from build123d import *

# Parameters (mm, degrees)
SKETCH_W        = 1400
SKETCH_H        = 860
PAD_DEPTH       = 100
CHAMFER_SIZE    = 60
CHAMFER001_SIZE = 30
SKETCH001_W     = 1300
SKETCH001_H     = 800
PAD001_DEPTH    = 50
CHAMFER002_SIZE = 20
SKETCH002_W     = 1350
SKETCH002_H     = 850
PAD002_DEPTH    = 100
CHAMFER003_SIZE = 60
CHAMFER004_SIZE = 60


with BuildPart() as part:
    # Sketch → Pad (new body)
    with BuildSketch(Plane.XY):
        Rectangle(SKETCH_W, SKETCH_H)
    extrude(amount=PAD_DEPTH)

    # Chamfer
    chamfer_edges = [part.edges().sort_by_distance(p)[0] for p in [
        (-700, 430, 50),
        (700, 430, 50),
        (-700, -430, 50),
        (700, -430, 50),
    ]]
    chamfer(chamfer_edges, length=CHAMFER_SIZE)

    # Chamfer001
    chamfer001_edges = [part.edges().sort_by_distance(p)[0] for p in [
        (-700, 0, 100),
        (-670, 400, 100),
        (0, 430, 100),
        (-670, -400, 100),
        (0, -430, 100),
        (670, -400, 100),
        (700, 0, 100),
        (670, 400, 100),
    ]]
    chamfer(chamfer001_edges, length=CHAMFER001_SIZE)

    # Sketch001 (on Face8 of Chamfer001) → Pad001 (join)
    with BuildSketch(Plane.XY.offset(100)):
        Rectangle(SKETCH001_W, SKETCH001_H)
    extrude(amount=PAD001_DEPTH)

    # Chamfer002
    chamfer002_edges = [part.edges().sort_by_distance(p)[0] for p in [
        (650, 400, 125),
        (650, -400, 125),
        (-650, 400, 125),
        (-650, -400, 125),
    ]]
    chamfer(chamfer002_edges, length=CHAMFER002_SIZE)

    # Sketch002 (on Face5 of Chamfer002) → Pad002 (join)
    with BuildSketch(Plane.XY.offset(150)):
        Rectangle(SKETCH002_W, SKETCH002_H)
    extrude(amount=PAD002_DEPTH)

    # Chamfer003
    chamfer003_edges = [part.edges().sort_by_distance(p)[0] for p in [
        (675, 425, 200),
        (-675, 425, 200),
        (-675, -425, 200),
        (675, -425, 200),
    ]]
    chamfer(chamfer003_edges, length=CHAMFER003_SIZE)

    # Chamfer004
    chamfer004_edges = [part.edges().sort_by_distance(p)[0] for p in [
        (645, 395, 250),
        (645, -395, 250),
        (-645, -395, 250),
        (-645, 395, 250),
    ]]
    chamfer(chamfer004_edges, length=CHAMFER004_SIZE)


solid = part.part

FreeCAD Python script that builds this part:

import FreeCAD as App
import Part
import Sketcher
from FreeCAD import Vector


def edges_at(feature, points):
    """Names of the edges that pass closest to the given points."""
    edges = feature.Shape.Edges
    near = lambda p: min(range(len(edges)), key=lambda i: edges[i].distToShape(Part.Vertex(*p))[0])
    return sorted({f"Edge{near(p) + 1}" for p in points})


def add_polygon(sketch, points):
    """Adds a closed chain of lines whose ends are joined by coincident constraints."""
    first, n = sketch.GeometryCount, len(points)
    for a, b in zip(points, points[1:] + points[:1]):
        sketch.addGeometry(Part.LineSegment(App.Vector(*a, 0), App.Vector(*b, 0)), False)
    for i in range(n):
        sketch.addConstraint(Sketcher.Constraint("Coincident", first + i, 2, first + (i + 1) % n, 1))

doc = App.newDocument("Part")
body = doc.addObject("PartDesign::Body", "Body")

sketch1 = body.newObject("Sketcher::SketchObject", "Sketch")
sketch1.AttachmentSupport = (doc.getObject("XY_Plane"), [""])
sketch1.MapMode = "FlatFace"
add_polygon(sketch1, [(-700, 430), (-700, -430), (700, -430), (700, 430)])
sketch1.addConstraint(Sketcher.Constraint("Vertical", 0))
sketch1.addConstraint(Sketcher.Constraint("Horizontal", 1))
sketch1.addConstraint(Sketcher.Constraint("Vertical", 2))
sketch1.addConstraint(Sketcher.Constraint("Horizontal", 3))
sketch1.addConstraint(Sketcher.Constraint("Symmetric", 0, 2, 2, 2, -1, 1))
sketch1.addConstraint(Sketcher.Constraint("DistanceX", 1, 1, 1, 2, 1400.0))
sketch1.addConstraint(Sketcher.Constraint("DistanceY", 0, 2, 0, 1, 860.0))
pad1 = body.newObject("PartDesign::Pad", "Pad")
pad1.Profile = sketch1
pad1.Length = 100
doc.recompute()

chamfer = body.newObject("PartDesign::Chamfer", "Chamfer")
chamfer.Base = (pad1, edges_at(pad1, [
    (-700, 430, 50),
    (700, 430, 50),
    (-700, -430, 50),
    (700, -430, 50),
]))
chamfer.Size = 60
doc.recompute()

chamfer2 = body.newObject("PartDesign::Chamfer", "Chamfer001")
chamfer2.Base = (chamfer, edges_at(chamfer, [
    (-700, 0, 100),
    (-670, 400, 100),
    (0, 430, 100),
    (-670, -400, 100),
    (0, -430, 100),
    (670, -400, 100),
    (700, 0, 100),
    (670, 400, 100),
]))
chamfer2.Size = 30

sketch2 = body.newObject("Sketcher::SketchObject", "Sketch001")
sketch2.AttachmentSupport = (doc.getObject("XY_Plane"), [""])
sketch2.MapMode = "FlatFace"
sketch2.AttachmentOffset = App.Placement(Vector(0, 0, 100), App.Rotation())
add_polygon(sketch2, [(-650, 400), (-650, -400), (650, -400), (650, 400)])
sketch2.addConstraint(Sketcher.Constraint("Vertical", 0))
sketch2.addConstraint(Sketcher.Constraint("Horizontal", 1))
sketch2.addConstraint(Sketcher.Constraint("Vertical", 2))
sketch2.addConstraint(Sketcher.Constraint("Horizontal", 3))
sketch2.addConstraint(Sketcher.Constraint("Symmetric", 0, 2, 2, 2, -1, 1))
sketch2.addConstraint(Sketcher.Constraint("DistanceX", 1, 1, 1, 2, 1300.0))
sketch2.addConstraint(Sketcher.Constraint("DistanceY", 0, 2, 0, 1, 800.0))
pad2 = body.newObject("PartDesign::Pad", "Pad001")
pad2.Profile = sketch2
pad2.Length = 50
doc.recompute()

chamfer3 = body.newObject("PartDesign::Chamfer", "Chamfer002")
chamfer3.Base = (pad2, edges_at(pad2, [
    (650, 400, 125),
    (650, -400, 125),
    (-650, 400, 125),
    (-650, -400, 125),
]))
chamfer3.Size = 20

sketch3 = body.newObject("Sketcher::SketchObject", "Sketch002")
sketch3.AttachmentSupport = (doc.getObject("XY_Plane"), [""])
sketch3.MapMode = "FlatFace"
sketch3.AttachmentOffset = App.Placement(Vector(0, 0, 150), App.Rotation())
add_polygon(sketch3, [(-675, 425), (-675, -425), (675, -425), (675, 425)])
sketch3.addConstraint(Sketcher.Constraint("Vertical", 0))
sketch3.addConstraint(Sketcher.Constraint("Horizontal", 1))
sketch3.addConstraint(Sketcher.Constraint("Vertical", 2))
sketch3.addConstraint(Sketcher.Constraint("Horizontal", 3))
sketch3.addConstraint(Sketcher.Constraint("Symmetric", 0, 2, 2, 2, -1, 1))
sketch3.addConstraint(Sketcher.Constraint("DistanceX", 1, 1, 1, 2, 1350.0))
sketch3.addConstraint(Sketcher.Constraint("DistanceY", 0, 2, 0, 1, 850.0))
pad3 = body.newObject("PartDesign::Pad", "Pad002")
pad3.Profile = sketch3
pad3.Length = 100
doc.recompute()

chamfer4 = body.newObject("PartDesign::Chamfer", "Chamfer003")
chamfer4.Base = (pad3, edges_at(pad3, [
    (675, 425, 200),
    (-675, 425, 200),
    (-675, -425, 200),
    (675, -425, 200),
]))
chamfer4.Size = 60
doc.recompute()

chamfer5 = body.newObject("PartDesign::Chamfer", "Chamfer004")
chamfer5.Base = (chamfer4, edges_at(chamfer4, [
    (645, 395, 250),
    (645, -395, 250),
    (-645, -395, 250),
    (-645, 395, 250),
]))
chamfer5.Size = 60

doc.recompute()
